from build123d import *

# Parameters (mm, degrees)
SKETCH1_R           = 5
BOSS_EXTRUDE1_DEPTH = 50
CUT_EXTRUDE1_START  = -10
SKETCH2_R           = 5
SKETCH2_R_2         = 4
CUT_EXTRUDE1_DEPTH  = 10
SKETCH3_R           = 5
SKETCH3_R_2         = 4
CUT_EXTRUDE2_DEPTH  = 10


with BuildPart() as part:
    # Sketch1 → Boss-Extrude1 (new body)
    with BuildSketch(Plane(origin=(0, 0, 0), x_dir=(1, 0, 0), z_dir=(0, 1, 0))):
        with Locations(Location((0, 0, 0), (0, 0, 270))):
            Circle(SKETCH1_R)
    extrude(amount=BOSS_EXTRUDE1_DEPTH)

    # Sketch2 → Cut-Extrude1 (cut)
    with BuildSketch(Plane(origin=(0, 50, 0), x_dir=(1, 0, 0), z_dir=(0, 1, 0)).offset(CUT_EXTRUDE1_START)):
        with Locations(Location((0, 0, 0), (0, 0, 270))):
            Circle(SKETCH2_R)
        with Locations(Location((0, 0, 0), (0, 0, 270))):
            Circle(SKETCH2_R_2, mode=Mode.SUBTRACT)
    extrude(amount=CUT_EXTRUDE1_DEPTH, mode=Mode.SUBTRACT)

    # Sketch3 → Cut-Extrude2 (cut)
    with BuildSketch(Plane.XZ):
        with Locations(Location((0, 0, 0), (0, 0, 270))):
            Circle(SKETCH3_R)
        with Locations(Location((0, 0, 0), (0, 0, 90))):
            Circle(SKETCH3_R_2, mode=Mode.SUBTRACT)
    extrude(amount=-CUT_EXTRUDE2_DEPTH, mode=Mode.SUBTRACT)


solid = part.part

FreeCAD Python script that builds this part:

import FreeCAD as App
import Part
import Sketcher
from FreeCAD import Vector
Q = App.Units.Quantity

doc = App.newDocument("Part")
body = doc.addObject("PartDesign::Body", "Body")

sketch1 = body.newObject("Sketcher::SketchObject", "Sketch")
sketch1.AttachmentSupport = (doc.getObject("XZ_Plane"), [""])
sketch1.MapMode = "FlatFace"
sketch1.addGeometry(Part.Circle(Vector(0, 0, 0), Vector(0, 0, 1), 5), False)
sketch1.addConstraint([
    Sketcher.Constraint("Coincident", 0, 3, -1, 1),
    Sketcher.Constraint("Diameter", 0, Q("10 mm")),
])
pad1 = body.newObject("PartDesign::Pad", "Pad")
pad1.Profile = sketch1
pad1.Length = 50
pad1.Reversed = True

sketch2 = body.newObject("Sketcher::SketchObject", "Sketch001")
sketch2.AttachmentSupport = (doc.getObject("XZ_Plane"), [""])
sketch2.MapMode = "FlatFace"
sketch2.AttachmentOffset = App.Placement(Vector(0, 0, -40), App.Rotation())
sketch2.addGeometry([
    Part.Circle(Vector(0, 0, 0), Vector(0, 0, 1), 5),
    Part.Circle(Vector(0, 0, 0), Vector(0, 0, 1), 4),
], False)
sketch2.addConstraint([
    Sketcher.Constraint("Coincident", 0, 3, -1, 1),
    Sketcher.Constraint("Coincident", 1, 3, -1, 1),
    Sketcher.Constraint("Diameter", 0, Q("10 mm")),
    Sketcher.Constraint("Diameter", 1, Q("8 mm")),
])
pocket1 = body.newObject("PartDesign::Pocket", "Pocket")
pocket1.Profile = sketch2
pocket1.Length = 10

sketch3 = body.newObject("Sketcher::SketchObject", "Sketch002")
sketch3.AttachmentSupport = (doc.getObject("XZ_Plane"), [""])
sketch3.MapMode = "FlatFace"
sketch3.addGeometry([
    Part.Circle(Vector(0, 0, 0), Vector(0, 0, 1), 5),
    Part.Circle(Vector(0, 0, 0), Vector(0, 0, 1), 4),
], False)
sketch3.addConstraint([
    Sketcher.Constraint("Coincident", 0, 3, -1, 1),
    Sketcher.Constraint("Coincident", 1, 3, -1, 1),
    Sketcher.Constraint("Diameter", 0, Q("10 mm")),
    Sketcher.Constraint("Diameter", 1, Q("8 mm")),
])
pocket2 = body.newObject("PartDesign::Pocket", "Pocket001")
pocket2.Profile = sketch3
pocket2.Length = 10

doc.recompute()
